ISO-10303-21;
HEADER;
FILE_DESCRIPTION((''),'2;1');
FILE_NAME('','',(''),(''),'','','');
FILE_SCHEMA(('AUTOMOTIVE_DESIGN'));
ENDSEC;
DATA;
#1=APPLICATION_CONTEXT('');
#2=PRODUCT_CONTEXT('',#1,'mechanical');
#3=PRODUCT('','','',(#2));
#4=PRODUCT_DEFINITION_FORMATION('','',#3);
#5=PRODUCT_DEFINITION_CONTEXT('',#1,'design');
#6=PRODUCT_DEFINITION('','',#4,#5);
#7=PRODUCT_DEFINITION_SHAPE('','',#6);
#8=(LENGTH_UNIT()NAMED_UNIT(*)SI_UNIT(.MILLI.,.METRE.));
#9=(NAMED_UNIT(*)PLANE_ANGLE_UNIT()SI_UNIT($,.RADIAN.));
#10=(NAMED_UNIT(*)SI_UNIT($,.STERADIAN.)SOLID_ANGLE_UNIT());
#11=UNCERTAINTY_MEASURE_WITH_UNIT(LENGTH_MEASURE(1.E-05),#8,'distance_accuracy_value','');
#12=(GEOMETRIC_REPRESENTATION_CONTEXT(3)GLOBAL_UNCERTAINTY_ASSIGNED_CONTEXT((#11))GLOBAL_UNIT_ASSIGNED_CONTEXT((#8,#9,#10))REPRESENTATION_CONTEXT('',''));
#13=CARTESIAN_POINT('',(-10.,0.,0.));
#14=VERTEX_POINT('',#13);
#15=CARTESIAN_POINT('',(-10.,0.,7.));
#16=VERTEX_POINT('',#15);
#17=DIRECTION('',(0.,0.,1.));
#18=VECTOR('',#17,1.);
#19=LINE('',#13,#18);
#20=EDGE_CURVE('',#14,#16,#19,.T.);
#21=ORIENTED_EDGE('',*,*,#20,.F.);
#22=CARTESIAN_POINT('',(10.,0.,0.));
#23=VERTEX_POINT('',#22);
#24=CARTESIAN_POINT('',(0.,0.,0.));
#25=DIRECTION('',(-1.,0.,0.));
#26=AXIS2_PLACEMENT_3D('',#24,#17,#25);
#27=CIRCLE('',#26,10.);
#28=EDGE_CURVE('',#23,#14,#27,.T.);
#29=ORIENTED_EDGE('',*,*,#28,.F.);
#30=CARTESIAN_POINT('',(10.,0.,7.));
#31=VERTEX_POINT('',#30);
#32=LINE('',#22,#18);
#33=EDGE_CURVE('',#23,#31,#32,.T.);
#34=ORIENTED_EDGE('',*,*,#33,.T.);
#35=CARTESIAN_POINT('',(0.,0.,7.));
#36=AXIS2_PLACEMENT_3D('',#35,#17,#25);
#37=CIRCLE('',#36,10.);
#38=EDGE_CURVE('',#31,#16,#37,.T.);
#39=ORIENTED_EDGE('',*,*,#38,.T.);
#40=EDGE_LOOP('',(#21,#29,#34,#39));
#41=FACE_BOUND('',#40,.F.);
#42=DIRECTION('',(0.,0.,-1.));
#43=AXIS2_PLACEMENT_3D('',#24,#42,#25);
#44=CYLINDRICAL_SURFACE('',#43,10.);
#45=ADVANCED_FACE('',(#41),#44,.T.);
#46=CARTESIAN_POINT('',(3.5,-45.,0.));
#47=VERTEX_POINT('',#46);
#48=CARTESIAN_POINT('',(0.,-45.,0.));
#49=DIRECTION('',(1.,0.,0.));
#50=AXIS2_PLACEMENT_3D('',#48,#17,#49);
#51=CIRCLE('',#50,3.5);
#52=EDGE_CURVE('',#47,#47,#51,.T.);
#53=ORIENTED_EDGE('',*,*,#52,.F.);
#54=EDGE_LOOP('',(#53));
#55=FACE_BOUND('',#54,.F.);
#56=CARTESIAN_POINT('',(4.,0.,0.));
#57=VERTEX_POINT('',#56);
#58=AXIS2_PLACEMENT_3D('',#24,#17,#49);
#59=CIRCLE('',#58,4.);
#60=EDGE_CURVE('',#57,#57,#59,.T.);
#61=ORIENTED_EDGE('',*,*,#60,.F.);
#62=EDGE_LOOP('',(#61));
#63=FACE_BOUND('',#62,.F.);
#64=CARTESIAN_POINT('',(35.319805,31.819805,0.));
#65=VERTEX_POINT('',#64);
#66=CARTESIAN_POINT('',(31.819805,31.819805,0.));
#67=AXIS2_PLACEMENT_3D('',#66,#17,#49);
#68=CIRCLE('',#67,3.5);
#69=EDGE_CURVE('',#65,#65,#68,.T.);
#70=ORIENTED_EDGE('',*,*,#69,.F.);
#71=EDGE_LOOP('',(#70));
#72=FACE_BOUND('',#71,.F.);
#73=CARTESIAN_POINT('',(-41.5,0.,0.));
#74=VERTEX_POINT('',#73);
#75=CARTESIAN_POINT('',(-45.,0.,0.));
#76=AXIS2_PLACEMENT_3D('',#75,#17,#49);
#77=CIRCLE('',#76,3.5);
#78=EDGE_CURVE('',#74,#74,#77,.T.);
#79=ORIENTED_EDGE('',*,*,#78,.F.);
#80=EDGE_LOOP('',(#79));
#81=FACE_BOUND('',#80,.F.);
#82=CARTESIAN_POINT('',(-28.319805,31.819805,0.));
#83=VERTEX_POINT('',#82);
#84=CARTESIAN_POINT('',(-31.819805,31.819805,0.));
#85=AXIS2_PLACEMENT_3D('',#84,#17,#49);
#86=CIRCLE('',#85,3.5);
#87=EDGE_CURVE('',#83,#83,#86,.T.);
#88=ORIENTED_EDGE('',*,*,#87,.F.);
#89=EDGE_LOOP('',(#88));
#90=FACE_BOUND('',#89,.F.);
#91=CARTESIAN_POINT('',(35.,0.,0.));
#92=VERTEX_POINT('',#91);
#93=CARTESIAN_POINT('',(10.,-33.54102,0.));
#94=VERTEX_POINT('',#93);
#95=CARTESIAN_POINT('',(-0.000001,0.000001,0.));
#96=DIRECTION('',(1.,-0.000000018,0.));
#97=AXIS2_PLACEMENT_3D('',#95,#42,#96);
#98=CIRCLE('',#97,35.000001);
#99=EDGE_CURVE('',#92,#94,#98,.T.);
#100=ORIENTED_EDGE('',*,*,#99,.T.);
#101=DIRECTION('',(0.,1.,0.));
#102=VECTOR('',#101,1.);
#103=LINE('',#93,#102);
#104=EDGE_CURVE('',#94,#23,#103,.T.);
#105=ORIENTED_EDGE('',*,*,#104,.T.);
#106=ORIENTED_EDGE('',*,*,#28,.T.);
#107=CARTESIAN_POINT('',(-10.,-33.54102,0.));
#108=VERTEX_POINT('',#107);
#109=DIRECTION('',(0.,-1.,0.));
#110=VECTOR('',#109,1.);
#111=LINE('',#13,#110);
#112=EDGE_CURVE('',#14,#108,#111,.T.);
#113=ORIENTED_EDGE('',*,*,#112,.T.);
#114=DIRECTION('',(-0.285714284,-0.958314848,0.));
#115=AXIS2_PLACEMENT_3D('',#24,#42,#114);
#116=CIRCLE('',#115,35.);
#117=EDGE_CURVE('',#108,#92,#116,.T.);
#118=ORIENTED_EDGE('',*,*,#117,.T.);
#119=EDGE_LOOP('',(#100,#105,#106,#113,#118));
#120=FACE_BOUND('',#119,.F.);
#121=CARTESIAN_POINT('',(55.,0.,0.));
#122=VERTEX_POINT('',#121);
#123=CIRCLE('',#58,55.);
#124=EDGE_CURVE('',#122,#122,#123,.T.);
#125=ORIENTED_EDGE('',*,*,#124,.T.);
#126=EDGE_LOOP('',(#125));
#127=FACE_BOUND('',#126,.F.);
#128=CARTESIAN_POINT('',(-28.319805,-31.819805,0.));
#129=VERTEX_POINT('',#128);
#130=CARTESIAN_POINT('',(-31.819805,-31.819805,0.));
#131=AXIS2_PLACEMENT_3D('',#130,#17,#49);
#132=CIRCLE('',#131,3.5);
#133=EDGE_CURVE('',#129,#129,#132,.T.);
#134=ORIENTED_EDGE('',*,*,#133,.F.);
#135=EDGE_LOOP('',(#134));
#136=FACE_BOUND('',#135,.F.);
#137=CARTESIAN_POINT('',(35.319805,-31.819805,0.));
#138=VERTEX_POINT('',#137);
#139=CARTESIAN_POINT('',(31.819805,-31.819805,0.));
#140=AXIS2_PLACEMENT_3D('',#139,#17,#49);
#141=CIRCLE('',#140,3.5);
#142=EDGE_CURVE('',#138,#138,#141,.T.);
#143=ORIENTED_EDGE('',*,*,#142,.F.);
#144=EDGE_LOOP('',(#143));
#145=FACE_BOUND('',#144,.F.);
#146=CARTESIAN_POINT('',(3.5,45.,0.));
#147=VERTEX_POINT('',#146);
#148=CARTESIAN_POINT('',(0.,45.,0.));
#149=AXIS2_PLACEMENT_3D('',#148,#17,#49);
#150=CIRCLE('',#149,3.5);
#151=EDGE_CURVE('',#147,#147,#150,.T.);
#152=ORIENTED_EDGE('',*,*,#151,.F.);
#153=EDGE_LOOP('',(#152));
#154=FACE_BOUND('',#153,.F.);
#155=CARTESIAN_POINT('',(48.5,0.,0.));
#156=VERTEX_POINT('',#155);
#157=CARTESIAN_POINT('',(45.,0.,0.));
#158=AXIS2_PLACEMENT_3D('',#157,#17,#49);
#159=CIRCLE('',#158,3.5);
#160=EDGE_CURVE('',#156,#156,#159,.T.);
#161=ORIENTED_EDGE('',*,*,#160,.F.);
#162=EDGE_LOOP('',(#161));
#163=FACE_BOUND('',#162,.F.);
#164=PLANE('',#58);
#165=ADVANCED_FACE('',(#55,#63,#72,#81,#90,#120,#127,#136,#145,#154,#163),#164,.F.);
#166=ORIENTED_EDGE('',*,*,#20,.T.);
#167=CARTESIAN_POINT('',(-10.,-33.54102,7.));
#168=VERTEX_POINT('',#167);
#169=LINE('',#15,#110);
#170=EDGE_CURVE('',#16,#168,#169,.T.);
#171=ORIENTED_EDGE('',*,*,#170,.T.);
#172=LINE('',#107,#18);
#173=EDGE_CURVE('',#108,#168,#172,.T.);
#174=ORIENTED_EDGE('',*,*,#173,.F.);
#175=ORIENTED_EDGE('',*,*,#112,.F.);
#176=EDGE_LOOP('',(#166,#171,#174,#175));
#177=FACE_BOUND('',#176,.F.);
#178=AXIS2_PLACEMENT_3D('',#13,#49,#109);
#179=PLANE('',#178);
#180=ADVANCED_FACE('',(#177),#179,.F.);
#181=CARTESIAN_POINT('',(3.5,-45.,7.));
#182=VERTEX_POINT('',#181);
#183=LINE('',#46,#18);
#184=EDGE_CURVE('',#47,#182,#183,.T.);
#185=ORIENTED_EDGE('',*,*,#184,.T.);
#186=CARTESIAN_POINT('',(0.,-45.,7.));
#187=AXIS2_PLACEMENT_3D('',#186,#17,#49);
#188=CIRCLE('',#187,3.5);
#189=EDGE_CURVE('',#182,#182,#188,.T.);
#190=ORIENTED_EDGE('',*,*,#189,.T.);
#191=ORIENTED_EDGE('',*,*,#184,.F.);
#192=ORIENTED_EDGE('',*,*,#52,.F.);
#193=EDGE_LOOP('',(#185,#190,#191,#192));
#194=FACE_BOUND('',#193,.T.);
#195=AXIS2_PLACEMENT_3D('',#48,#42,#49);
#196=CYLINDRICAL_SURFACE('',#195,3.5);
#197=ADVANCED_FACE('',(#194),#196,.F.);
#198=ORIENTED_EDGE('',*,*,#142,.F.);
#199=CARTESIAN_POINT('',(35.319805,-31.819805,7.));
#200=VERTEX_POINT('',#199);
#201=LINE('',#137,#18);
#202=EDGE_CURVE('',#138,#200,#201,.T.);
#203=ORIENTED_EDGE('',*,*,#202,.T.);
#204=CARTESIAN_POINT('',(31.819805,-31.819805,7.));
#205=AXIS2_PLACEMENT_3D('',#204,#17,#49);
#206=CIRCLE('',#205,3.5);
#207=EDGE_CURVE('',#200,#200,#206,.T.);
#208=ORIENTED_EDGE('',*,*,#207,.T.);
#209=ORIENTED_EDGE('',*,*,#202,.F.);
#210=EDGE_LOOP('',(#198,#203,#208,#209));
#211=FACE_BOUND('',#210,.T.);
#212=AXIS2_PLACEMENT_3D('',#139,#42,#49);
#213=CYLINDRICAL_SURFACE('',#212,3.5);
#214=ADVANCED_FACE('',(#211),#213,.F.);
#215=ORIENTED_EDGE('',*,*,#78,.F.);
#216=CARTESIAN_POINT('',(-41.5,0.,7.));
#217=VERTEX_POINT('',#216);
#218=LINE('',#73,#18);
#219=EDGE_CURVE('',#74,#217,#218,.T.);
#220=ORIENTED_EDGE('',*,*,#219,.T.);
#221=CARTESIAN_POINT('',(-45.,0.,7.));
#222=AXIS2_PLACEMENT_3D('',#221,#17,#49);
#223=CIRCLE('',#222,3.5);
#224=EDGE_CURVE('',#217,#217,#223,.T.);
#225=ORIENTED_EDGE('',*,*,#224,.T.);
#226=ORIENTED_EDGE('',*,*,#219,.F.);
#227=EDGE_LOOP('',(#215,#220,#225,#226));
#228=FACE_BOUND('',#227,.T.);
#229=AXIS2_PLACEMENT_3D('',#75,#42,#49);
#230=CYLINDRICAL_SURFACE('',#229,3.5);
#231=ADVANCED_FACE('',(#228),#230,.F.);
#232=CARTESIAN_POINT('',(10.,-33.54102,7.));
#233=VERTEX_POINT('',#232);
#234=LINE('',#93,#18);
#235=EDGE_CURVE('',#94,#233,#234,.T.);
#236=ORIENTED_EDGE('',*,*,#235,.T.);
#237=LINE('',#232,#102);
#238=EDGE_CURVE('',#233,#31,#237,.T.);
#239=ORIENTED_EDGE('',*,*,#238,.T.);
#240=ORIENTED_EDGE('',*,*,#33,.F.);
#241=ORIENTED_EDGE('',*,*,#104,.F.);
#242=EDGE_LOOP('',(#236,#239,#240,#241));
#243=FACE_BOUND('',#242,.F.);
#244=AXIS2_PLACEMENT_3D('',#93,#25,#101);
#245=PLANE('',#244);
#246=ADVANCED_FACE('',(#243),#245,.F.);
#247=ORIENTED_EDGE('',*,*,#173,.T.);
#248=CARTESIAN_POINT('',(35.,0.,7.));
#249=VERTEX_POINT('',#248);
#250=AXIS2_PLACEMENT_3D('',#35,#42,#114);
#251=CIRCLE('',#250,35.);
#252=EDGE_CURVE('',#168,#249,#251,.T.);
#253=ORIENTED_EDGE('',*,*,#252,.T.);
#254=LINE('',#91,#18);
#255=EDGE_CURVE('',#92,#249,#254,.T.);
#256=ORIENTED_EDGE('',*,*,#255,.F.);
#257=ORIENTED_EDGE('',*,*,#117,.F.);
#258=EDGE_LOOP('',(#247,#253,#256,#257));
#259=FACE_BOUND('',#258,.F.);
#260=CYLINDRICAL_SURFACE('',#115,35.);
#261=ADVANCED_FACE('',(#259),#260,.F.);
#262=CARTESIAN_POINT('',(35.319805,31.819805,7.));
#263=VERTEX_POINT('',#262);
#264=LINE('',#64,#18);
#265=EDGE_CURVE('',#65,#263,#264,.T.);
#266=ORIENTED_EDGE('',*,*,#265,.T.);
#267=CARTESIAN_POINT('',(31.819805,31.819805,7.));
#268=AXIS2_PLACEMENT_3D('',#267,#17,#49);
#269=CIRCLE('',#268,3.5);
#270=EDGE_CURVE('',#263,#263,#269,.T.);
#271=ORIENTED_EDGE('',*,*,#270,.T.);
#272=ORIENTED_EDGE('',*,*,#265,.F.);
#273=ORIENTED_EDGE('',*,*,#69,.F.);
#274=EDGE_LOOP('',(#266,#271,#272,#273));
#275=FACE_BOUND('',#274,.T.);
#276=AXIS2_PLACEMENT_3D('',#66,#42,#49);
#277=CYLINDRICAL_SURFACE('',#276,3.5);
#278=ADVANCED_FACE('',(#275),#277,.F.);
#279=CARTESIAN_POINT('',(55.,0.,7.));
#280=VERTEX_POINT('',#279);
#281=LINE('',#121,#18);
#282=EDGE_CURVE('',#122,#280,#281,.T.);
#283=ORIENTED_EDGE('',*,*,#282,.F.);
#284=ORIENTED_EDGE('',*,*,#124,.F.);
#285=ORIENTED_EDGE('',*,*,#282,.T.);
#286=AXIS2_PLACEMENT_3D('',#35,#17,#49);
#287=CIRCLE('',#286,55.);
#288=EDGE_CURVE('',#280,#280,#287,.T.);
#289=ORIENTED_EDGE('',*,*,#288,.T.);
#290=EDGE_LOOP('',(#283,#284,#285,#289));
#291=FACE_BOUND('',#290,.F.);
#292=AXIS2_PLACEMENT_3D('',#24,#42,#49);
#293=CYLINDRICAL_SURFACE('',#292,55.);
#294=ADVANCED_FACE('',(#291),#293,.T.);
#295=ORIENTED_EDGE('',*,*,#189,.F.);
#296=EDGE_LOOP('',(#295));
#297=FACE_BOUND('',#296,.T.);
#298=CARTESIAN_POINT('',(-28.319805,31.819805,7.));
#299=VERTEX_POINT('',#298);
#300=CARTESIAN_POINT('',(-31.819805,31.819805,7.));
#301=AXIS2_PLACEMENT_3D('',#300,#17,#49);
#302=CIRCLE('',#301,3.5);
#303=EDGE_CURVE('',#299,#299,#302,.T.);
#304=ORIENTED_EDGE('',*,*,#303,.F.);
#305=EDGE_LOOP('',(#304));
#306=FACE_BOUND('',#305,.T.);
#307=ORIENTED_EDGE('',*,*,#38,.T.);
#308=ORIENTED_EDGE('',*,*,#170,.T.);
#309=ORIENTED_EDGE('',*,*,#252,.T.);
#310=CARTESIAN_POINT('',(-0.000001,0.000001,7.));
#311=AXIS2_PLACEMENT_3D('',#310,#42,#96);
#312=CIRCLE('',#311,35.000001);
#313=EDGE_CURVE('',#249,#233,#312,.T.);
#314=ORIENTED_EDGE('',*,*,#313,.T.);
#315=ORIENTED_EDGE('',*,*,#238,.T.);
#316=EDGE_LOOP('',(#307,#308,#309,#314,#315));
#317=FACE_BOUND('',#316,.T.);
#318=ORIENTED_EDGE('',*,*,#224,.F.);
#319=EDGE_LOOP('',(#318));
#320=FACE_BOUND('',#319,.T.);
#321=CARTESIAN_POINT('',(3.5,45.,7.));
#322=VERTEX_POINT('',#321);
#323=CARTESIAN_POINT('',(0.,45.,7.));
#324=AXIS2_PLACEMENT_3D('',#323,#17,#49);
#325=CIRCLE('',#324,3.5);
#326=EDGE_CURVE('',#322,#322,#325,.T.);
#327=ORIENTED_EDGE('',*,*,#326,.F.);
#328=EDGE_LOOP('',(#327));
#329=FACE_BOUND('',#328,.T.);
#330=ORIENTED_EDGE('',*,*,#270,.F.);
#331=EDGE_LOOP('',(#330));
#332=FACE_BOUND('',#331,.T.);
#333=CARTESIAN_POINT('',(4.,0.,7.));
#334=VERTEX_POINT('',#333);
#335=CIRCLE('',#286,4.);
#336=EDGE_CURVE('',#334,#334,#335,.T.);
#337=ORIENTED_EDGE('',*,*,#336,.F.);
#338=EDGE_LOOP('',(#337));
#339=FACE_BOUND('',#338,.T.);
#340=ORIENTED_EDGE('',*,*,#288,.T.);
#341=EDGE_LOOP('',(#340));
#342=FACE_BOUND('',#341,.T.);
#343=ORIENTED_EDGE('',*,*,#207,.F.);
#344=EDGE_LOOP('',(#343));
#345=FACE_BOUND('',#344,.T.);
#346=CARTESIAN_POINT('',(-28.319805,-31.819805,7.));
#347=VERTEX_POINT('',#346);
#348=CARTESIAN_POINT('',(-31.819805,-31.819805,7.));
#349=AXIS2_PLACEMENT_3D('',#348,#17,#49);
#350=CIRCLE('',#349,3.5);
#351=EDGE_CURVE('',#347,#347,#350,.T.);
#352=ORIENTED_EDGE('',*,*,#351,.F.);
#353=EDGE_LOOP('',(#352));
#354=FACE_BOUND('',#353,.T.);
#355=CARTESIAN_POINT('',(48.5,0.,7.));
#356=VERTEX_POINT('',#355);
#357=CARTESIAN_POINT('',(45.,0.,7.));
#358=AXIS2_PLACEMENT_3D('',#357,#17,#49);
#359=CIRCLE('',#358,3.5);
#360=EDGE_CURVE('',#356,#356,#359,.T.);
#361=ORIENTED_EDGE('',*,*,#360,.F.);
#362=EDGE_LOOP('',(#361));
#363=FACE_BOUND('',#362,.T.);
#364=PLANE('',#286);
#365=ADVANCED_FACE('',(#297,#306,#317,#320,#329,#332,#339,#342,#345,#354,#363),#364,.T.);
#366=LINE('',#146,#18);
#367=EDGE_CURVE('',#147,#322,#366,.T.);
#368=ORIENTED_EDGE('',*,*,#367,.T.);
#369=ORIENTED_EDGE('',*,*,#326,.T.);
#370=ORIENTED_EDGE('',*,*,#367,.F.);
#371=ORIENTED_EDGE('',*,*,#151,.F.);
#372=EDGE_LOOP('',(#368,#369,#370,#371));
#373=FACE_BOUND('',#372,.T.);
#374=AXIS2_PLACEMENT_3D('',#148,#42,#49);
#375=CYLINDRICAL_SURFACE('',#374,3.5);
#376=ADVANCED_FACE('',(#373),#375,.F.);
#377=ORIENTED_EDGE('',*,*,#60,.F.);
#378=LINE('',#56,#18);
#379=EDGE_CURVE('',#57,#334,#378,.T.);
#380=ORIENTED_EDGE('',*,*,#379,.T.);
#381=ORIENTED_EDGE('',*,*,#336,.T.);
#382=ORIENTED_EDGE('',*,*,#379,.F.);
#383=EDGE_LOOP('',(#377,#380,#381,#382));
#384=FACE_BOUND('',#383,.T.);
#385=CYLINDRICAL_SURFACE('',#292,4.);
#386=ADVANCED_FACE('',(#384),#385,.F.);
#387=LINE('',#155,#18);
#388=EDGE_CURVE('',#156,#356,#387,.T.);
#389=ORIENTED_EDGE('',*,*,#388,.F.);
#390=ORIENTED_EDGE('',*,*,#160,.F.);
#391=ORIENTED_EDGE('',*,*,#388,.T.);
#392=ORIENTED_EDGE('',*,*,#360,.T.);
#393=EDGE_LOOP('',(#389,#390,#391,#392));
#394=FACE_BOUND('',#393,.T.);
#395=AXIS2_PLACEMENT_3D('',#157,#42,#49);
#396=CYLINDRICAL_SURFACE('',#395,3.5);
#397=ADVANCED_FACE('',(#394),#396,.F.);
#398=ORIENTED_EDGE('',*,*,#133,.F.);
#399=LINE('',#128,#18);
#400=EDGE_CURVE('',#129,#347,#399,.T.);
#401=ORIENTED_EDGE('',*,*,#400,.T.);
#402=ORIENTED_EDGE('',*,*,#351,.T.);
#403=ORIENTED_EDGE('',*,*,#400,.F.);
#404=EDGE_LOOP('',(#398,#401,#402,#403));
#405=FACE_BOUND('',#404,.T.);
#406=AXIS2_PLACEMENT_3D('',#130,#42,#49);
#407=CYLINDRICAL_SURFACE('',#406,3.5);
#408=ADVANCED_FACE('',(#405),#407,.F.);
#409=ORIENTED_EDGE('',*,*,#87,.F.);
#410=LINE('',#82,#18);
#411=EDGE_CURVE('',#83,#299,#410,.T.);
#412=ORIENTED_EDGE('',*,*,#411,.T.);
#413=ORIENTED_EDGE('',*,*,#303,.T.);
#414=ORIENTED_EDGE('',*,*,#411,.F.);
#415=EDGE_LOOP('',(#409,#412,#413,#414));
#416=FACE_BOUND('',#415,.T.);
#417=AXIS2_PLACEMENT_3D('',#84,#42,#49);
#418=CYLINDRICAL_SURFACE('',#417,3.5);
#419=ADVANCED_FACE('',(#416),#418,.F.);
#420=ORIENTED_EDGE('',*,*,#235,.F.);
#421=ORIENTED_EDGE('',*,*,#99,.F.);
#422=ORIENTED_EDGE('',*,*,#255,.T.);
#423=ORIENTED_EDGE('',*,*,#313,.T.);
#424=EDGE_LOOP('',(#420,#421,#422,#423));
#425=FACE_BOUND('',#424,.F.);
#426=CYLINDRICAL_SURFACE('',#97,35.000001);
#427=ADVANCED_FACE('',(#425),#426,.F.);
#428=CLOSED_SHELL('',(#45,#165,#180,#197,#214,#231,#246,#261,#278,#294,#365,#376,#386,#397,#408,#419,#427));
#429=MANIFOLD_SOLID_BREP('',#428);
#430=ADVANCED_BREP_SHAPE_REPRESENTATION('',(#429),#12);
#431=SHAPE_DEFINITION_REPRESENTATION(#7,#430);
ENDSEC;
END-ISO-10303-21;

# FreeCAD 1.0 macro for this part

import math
import FreeCAD as App
import Part
import Sketcher

doc = App.newDocument("Part")
body = doc.addObject("PartDesign::Body", "Body")

sketch1 = body.newObject("Sketcher::SketchObject", "Sketch")
sketch1.AttachmentSupport = (doc.getObject("XY_Plane"), [""])
sketch1.MapMode = "FlatFace"
sketch1.addGeometry([
    Part.Circle(App.Vector(0, 0, 0), App.Vector(0, 0, 1), 55),
    Part.Circle(App.Vector(-31.8, -31.8, 0), App.Vector(0, 0, 1), 3.5),
    Part.ArcOfCircle(Part.Circle(App.Vector(0, 0, 0), App.Vector(0, 0, 1), 35), math.radians(-73), math.radians(0)),
    Part.LineSegment(App.Vector(10, -33.5, 0), App.Vector(10, 0, 0)),
    Part.ArcOfCircle(Part.Circle(App.Vector(0, 0, 0), App.Vector(0, 0, 1), 10), math.radians(0), math.radians(180)),
    Part.LineSegment(App.Vector(-10, 0, 0), App.Vector(-10, -33.5, 0)),
    Part.ArcOfCircle(Part.Circle(App.Vector(0, 0, 0), App.Vector(0, 0, 1), 35), math.radians(0), math.radians(253)),
    Part.Circle(App.Vector(0, -45, 0), App.Vector(0, 0, 1), 3.5),
    Part.Circle(App.Vector(31.8, -31.8, 0), App.Vector(0, 0, 1), 3.5),
    Part.Circle(App.Vector(-45, 0, 0), App.Vector(0, 0, 1), 3.5),
    Part.Circle(App.Vector(-31.8, 31.8, 0), App.Vector(0, 0, 1), 3.5),
    Part.Circle(App.Vector(45, 0, 0), App.Vector(0, 0, 1), 3.5),
    Part.Circle(App.Vector(0, 45, 0), App.Vector(0, 0, 1), 3.5),
    Part.Circle(App.Vector(31.8, 31.8, 0), App.Vector(0, 0, 1), 3.5),
    Part.Circle(App.Vector(0, 0, 0), App.Vector(0, 0, 1), 4),
], False)
sketch1.addConstraint([
    Sketcher.Constraint("Coincident", 2, 1, 3, 1),
    Sketcher.Constraint("Tangent", 3, 2, 4, 1),
    Sketcher.Constraint("Tangent", 4, 2, 5, 1),
    Sketcher.Constraint("Coincident", 5, 2, 6, 2),
    Sketcher.Constraint("Tangent", 6, 1, 2, 2),
    Sketcher.Constraint("Vertical", 3),
    Sketcher.Constraint("Vertical", 5),
    Sketcher.Constraint("Coincident", 0, 3, -1, 1),
    Sketcher.Constraint("Coincident", 2, 3, -1, 1),
    Sketcher.Constraint("Coincident", 4, 3, -1, 1),
    Sketcher.Constraint("Coincident", 14, 3, -1, 1),
    Sketcher.Constraint("Equal", 2, 6),
    Sketcher.Constraint("Equal", 1, 7),
    Sketcher.Constraint("Equal", 7, 8),
    Sketcher.Constraint("Equal", 8, 9),
    Sketcher.Constraint("Equal", 9, 10),
    Sketcher.Constraint("Equal", 10, 11),
    Sketcher.Constraint("Equal", 11, 12),
    Sketcher.Constraint("Equal", 12, 13),
    Sketcher.Constraint("Symmetric", 8, 3, 10, 3, -1, 1),
    Sketcher.Constraint("Symmetric", 9, 3, 11, 3, -1, 1),
    Sketcher.Constraint("Symmetric", 7, 3, 12, 3, -1, 1),
    Sketcher.Constraint("Symmetric", 1, 3, 13, 3, -1, 1),
    Sketcher.Constraint("Symmetric", 1, 3, 8, 3, -2),
    Sketcher.Constraint("PointOnObject", 7, 3, -2),
    Sketcher.Constraint("PointOnObject", 9, 3, -1),
    Sketcher.Constraint("PointOnObject", 6, 1, -1),
    Sketcher.Constraint("Diameter", 0, 110.0),
    Sketcher.Constraint("Diameter", 1, 7.0),
    Sketcher.Constraint("Diameter", 14, 8.0),
    Sketcher.Constraint("Radius", 2, 35.000001),
    Sketcher.Constraint("Radius", 4, 10.0),
    Sketcher.Constraint("DistanceY", 7, 3, -1, 1, 45.0),
    Sketcher.Constraint("DistanceX", 9, 3, -1, 1, 45.0),
    Sketcher.Constraint("DistanceX", 1, 3, -1, 1, 31.819805),
    Sketcher.Constraint("DistanceY", 1, 3, -1, 1, 31.819805),
])
pad1 = body.newObject("PartDesign::Pad", "Pad")
pad1.Profile = sketch1
pad1.Length = 7

doc.recompute()
